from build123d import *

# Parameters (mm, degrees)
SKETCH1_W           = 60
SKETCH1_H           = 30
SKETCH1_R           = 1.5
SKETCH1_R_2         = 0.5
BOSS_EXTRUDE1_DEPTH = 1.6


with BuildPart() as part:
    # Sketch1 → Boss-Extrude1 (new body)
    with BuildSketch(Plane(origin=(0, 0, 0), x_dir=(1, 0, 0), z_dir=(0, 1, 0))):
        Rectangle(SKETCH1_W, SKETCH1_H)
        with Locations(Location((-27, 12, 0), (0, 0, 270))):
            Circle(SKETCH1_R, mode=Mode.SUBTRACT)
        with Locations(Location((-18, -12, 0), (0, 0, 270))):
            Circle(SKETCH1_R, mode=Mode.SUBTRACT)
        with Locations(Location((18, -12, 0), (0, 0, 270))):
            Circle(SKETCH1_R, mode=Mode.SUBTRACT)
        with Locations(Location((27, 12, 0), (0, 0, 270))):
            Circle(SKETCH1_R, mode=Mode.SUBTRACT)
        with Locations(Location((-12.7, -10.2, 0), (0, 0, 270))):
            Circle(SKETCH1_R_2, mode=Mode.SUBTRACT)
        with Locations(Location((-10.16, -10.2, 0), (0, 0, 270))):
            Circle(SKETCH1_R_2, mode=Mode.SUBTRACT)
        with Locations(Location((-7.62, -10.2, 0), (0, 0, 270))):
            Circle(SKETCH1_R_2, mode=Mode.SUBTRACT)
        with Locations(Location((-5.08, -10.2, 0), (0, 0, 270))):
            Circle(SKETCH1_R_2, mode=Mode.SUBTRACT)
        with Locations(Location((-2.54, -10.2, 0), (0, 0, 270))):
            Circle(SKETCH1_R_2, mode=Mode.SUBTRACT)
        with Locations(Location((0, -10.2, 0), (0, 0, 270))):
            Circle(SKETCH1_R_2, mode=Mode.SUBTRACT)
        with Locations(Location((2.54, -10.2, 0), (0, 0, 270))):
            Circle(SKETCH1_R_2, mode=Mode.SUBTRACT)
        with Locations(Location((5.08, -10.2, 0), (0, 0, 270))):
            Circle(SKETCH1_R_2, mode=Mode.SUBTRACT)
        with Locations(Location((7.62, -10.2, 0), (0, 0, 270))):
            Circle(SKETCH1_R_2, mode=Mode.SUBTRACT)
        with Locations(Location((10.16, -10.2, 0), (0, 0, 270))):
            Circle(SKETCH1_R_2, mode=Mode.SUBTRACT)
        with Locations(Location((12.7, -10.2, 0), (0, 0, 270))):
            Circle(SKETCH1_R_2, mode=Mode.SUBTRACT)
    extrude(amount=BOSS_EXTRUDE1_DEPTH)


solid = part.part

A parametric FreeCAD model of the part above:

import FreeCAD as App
import Part
import Sketcher

doc = App.newDocument("Part")
params = doc.addObject("Spreadsheet::Sheet", "Params")
for row, (alias, value) in enumerate([
    ("sketch1_diameter", "3 mm"),
    ("sketch1_diameter2", "1 mm"),
    ("sketch1_width", "60 mm"),
    ("sketch1_height", "30 mm"),
    ("pad1_length", "1.6 mm"),
], start=1):
    params.set(f"A{row}", alias)
    params.set(f"B{row}", "=" + value)
    params.setAlias(f"B{row}", alias)

body = doc.addObject("PartDesign::Body", "Body")

# Sketch on XZ plane
sketch1 = body.newObject("Sketcher::SketchObject", "Sketch")
sketch1.AttachmentSupport = (doc.getObject("XZ_Plane"), [""])
sketch1.MapMode = "FlatFace"
sketch1.addGeometry(Part.LineSegment(App.Vector(-30, -15, 0), App.Vector(-30, 15, 0)), False)
sketch1.addGeometry(Part.LineSegment(App.Vector(-30, 15, 0), App.Vector(30, 15, 0)), False)
sketch1.addGeometry(Part.LineSegment(App.Vector(30, 15, 0), App.Vector(30, -15, 0)), False)
sketch1.addGeometry(Part.LineSegment(App.Vector(30, -15, 0), App.Vector(-30, -15, 0)), False)
sketch1.addGeometry(Part.Circle(App.Vector(-18, 12, 0), App.Vector(0, 0, 1), 1.5), False)
sketch1.addGeometry(Part.Circle(App.Vector(-12.7, 10.2, 0), App.Vector(0, 0, 1), 0.5), False)
sketch1.addGeometry(Part.Circle(App.Vector(-10.2, 10.2, 0), App.Vector(0, 0, 1), 0.5), False)
sketch1.addGeometry(Part.Circle(App.Vector(-7.6, 10.2, 0), App.Vector(0, 0, 1), 0.5), False)
sketch1.addGeometry(Part.Circle(App.Vector(-5.1, 10.2, 0), App.Vector(0, 0, 1), 0.5), False)
sketch1.addGeometry(Part.Circle(App.Vector(-2.5, 10.2, 0), App.Vector(0, 0, 1), 0.5), False)
sketch1.addGeometry(Part.Circle(App.Vector(0, 10.2, 0), App.Vector(0, 0, 1), 0.5), False)
sketch1.addGeometry(Part.Circle(App.Vector(2.5, 10.2, 0), App.Vector(0, 0, 1), 0.5), False)
sketch1.addGeometry(Part.Circle(App.Vector(5.1, 10.2, 0), App.Vector(0, 0, 1), 0.5), False)
sketch1.addGeometry(Part.Circle(App.Vector(7.6, 10.2, 0), App.Vector(0, 0, 1), 0.5), False)
sketch1.addGeometry(Part.Circle(App.Vector(10.2, 10.2, 0), App.Vector(0, 0, 1), 0.5), False)
sketch1.addGeometry(Part.Circle(App.Vector(12.7, 10.2, 0), App.Vector(0, 0, 1), 0.5), False)
sketch1.addGeometry(Part.Circle(App.Vector(18, 12, 0), App.Vector(0, 0, 1), 1.5), False)
sketch1.addGeometry(Part.Circle(App.Vector(-27, -12, 0), App.Vector(0, 0, 1), 1.5), False)
sketch1.addGeometry(Part.Circle(App.Vector(27, -12, 0), App.Vector(0, 0, 1), 1.5), False)
sketch1.addConstraint(Sketcher.Constraint("Coincident", 0, 2, 1, 1))
sketch1.addConstraint(Sketcher.Constraint("Coincident", 1, 2, 2, 1))
sketch1.addConstraint(Sketcher.Constraint("Coincident", 2, 2, 3, 1))
sketch1.addConstraint(Sketcher.Constraint("Coincident", 3, 2, 0, 1))
sketch1.addConstraint(Sketcher.Constraint("Vertical", 0))
sketch1.addConstraint(Sketcher.Constraint("Horizontal", 1))
sketch1.addConstraint(Sketcher.Constraint("Vertical", 2))
sketch1.addConstraint(Sketcher.Constraint("Horizontal", 3))
sketch1.addConstraint(Sketcher.Constraint("Equal", 5, 6))
sketch1.addConstraint(Sketcher.Constraint("Equal", 6, 7))
sketch1.addConstraint(Sketcher.Constraint("Equal", 7, 8))
sketch1.addConstraint(Sketcher.Constraint("Equal", 8, 9))
sketch1.addConstraint(Sketcher.Constraint("Equal", 9, 10))
sketch1.addConstraint(Sketcher.Constraint("Equal", 10, 11))
sketch1.addConstraint(Sketcher.Constraint("Equal", 11, 12))
sketch1.addConstraint(Sketcher.Constraint("Equal", 12, 13))
sketch1.addConstraint(Sketcher.Constraint("Equal", 13, 14))
sketch1.addConstraint(Sketcher.Constraint("Equal", 14, 15))
sketch1.addConstraint(Sketcher.Constraint("Equal", 4, 16))
sketch1.addConstraint(Sketcher.Constraint("Equal", 16, 17))
sketch1.addConstraint(Sketcher.Constraint("Equal", 17, 18))
sketch1.addConstraint(Sketcher.Constraint("Symmetric", 0, 2, 2, 2, -1, 1))
sketch1.addConstraint(Sketcher.Constraint("Symmetric", 9, 3, 11, 3, -2))
sketch1.addConstraint(Sketcher.Constraint("Symmetric", 8, 3, 12, 3, -2))
sketch1.addConstraint(Sketcher.Constraint("Symmetric", 7, 3, 13, 3, -2))
sketch1.addConstraint(Sketcher.Constraint("Symmetric", 6, 3, 14, 3, -2))
sketch1.addConstraint(Sketcher.Constraint("Symmetric", 5, 3, 15, 3, -2))
sketch1.addConstraint(Sketcher.Constraint("Symmetric", 4, 3, 16, 3, -2))
sketch1.addConstraint(Sketcher.Constraint("Symmetric", 17, 3, 18, 3, -2))
sketch1.addConstraint(Sketcher.Constraint("PointOnObject", 10, 3, -2))
sketch1.addConstraint(Sketcher.Constraint("Horizontal", 5, 3, 6, 3))
sketch1.addConstraint(Sketcher.Constraint("Horizontal", 6, 3, 7, 3))
sketch1.addConstraint(Sketcher.Constraint("Horizontal", 7, 3, 8, 3))
sketch1.addConstraint(Sketcher.Constraint("Horizontal", 8, 3, 9, 3))
sketch1.addConstraint(Sketcher.Constraint("Horizontal", 9, 3, 10, 3))
sketch1.addConstraint(Sketcher.Constraint("Diameter", 4, 3.0))
sketch1.addConstraint(Sketcher.Constraint("Diameter", 5, 1.0))
sketch1.addConstraint(Sketcher.Constraint("DistanceX", 1, 1, 1, 2, 60.0))
sketch1.addConstraint(Sketcher.Constraint("DistanceY", 0, 1, 0, 2, 30.0))
sketch1.addConstraint(Sketcher.Constraint("DistanceX", 4, 3, -1, 1, 18.0))
sketch1.addConstraint(Sketcher.Constraint("DistanceY", -1, 1, 4, 3, 12.0))
sketch1.addConstraint(Sketcher.Constraint("DistanceX", 17, 3, -1, 1, 27.0))
sketch1.addConstraint(Sketcher.Constraint("DistanceY", 17, 3, -1, 1, 12.0))
sketch1.addConstraint(Sketcher.Constraint("DistanceX", 5, 3, -1, 1, 12.7))
sketch1.addConstraint(Sketcher.Constraint("DistanceY", -1, 1, 5, 3, 10.2))
sketch1.addConstraint(Sketcher.Constraint("DistanceX", 6, 3, 11, 3, 12.7))
sketch1.addConstraint(Sketcher.Constraint("DistanceX", 7, 3, 12, 3, 12.7))
sketch1.addConstraint(Sketcher.Constraint("DistanceX", 6, 3, -1, 1, 10.16))
sketch1.addConstraint(Sketcher.Constraint("DistanceX", 7, 3, -1, 1, 7.62))
sketch1.setExpression("Constraints[35]", "Params.sketch1_diameter")
sketch1.setExpression("Constraints[36]", "Params.sketch1_diameter2")
sketch1.setExpression("Constraints[37]", "Params.sketch1_width")
sketch1.setExpression("Constraints[38]", "Params.sketch1_height")
pad1 = body.newObject("PartDesign::Pad", "Pad")
pad1.Profile = sketch1
pad1.setExpression("Length", "Params.pad1_length")
pad1.Reversed = True

doc.recompute()
